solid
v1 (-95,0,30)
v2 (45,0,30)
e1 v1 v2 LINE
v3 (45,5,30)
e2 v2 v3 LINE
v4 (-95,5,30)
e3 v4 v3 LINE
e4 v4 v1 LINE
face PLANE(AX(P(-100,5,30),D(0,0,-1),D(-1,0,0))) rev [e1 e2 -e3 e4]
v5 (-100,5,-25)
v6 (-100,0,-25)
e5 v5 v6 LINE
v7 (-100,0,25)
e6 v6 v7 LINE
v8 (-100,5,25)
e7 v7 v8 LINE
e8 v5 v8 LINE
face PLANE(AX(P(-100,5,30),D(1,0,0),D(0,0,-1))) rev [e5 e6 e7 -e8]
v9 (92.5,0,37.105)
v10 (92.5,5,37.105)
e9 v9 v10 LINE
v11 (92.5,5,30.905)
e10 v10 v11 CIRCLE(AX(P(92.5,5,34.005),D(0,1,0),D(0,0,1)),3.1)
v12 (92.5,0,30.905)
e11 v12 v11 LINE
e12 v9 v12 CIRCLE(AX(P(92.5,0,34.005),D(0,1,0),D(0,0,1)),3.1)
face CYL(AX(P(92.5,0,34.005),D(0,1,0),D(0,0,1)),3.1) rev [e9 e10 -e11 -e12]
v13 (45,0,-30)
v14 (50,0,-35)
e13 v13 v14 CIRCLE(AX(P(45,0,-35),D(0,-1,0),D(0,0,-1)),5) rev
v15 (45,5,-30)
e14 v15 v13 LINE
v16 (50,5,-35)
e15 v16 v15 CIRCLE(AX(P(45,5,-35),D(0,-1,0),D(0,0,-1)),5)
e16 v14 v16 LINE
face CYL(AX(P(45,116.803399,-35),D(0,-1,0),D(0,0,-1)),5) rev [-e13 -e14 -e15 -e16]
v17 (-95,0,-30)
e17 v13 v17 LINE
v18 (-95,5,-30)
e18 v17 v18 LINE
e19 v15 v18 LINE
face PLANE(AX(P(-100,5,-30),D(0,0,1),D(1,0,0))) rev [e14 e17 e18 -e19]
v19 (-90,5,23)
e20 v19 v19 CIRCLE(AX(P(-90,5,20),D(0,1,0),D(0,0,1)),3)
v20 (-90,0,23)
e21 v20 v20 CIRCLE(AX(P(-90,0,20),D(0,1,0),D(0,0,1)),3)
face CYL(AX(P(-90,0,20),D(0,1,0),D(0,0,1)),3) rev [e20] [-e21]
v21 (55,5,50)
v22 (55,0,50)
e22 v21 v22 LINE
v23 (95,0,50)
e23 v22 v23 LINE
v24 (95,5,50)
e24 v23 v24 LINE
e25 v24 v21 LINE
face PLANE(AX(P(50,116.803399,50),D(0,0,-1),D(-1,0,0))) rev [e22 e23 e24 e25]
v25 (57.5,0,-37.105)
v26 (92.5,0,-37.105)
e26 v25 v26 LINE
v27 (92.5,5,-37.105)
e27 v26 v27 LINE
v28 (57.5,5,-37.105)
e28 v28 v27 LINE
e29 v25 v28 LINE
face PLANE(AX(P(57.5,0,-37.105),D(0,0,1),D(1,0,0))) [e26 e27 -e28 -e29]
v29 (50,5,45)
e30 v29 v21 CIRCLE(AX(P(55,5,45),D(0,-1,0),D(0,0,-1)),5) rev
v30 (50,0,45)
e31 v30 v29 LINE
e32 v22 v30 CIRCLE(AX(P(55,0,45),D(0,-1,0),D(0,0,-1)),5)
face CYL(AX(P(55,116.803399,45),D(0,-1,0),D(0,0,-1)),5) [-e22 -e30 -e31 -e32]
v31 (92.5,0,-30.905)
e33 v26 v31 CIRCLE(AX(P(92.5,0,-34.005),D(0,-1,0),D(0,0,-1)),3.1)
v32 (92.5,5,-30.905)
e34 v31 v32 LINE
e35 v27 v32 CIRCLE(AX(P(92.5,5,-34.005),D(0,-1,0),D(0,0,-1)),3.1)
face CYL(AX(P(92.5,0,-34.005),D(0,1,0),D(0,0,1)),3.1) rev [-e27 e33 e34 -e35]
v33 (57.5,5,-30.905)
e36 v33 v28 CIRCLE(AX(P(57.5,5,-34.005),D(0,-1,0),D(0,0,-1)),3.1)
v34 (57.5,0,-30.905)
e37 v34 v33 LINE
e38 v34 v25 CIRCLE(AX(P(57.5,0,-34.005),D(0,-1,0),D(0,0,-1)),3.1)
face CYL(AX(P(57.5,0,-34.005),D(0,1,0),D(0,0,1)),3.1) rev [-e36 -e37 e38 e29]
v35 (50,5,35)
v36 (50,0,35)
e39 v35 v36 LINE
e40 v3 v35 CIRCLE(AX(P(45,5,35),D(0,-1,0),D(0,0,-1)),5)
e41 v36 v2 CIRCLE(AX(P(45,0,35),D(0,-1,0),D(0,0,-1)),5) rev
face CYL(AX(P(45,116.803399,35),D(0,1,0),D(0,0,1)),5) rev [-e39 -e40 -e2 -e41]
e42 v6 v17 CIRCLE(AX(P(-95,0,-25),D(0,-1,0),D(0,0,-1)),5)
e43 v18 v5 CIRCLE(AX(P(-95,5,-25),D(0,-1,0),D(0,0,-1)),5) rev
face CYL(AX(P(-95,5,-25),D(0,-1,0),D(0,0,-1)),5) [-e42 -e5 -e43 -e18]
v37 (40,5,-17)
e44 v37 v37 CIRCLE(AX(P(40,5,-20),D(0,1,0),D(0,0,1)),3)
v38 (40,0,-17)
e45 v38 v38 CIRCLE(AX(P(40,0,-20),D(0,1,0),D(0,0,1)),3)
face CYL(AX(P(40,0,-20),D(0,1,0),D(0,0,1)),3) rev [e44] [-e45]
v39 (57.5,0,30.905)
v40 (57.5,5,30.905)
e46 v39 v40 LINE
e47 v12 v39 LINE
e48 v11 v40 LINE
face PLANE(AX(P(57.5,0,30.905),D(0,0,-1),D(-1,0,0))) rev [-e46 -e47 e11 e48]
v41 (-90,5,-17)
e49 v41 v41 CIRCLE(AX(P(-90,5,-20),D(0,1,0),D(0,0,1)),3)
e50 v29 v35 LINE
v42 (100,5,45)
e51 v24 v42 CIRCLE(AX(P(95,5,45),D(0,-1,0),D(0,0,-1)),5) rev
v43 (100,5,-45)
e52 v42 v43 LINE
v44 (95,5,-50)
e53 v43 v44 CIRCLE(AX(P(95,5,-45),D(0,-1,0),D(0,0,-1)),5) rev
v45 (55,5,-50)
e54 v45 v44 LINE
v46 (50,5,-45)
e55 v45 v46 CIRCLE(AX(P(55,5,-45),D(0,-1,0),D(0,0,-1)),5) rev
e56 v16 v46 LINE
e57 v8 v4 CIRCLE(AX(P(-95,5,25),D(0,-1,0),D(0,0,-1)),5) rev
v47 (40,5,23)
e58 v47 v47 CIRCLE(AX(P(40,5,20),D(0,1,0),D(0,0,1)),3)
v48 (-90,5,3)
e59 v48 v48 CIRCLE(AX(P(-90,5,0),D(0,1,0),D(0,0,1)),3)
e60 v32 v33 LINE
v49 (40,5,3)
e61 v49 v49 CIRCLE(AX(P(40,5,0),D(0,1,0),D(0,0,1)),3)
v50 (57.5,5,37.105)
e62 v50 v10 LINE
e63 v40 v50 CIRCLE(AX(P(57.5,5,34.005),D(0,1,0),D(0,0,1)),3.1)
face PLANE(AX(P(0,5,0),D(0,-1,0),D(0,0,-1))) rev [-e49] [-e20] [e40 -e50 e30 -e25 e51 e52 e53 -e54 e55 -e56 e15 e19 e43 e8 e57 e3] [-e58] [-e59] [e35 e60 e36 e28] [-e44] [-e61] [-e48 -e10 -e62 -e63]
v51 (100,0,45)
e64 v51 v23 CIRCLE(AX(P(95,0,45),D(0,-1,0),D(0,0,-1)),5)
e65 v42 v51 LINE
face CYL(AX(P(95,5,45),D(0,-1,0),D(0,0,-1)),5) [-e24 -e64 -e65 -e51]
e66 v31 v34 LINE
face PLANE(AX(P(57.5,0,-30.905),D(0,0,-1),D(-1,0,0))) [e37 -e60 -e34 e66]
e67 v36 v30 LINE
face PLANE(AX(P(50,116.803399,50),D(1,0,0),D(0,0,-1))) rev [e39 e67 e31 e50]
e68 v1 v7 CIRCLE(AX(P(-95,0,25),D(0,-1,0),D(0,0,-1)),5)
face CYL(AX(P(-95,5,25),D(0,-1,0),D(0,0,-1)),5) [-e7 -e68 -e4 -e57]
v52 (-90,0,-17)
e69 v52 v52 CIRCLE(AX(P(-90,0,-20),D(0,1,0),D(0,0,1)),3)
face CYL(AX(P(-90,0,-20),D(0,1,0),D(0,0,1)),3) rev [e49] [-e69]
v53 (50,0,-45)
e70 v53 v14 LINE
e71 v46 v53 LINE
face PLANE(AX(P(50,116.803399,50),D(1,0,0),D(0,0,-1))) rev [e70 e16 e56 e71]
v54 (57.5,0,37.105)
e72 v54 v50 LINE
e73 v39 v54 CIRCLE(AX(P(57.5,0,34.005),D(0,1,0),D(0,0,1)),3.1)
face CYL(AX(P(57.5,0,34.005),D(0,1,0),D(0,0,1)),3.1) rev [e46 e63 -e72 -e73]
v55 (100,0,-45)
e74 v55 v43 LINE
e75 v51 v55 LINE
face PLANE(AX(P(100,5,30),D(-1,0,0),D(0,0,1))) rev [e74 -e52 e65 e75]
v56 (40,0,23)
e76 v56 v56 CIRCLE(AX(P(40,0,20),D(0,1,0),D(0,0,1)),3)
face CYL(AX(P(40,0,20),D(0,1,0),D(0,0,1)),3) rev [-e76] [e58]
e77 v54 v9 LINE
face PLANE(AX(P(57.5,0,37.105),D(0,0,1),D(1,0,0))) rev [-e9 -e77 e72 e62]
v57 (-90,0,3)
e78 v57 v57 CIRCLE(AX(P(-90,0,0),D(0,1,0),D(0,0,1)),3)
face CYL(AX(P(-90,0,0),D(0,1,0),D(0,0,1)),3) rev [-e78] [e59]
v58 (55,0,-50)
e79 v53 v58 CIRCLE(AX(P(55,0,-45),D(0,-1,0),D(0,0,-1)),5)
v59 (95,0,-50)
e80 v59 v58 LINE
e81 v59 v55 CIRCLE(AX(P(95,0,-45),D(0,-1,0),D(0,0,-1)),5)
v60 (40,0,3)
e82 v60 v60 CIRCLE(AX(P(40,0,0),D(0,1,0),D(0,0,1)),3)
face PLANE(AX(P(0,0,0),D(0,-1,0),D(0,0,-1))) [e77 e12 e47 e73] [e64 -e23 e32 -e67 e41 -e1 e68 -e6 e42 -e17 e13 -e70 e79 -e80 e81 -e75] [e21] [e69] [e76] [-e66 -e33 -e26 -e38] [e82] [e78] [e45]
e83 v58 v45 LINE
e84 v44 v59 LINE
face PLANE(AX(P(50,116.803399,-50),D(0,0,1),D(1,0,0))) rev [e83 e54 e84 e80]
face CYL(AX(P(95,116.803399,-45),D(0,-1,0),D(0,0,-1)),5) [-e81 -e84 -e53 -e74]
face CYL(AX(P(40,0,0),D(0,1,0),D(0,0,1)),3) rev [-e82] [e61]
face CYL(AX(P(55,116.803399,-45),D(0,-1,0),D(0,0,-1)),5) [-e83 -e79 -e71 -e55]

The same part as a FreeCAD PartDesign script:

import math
import FreeCAD as App
import Part
import Sketcher
from FreeCAD import Vector
Q = App.Units.Quantity


def edges_at(feature, points):
    """Names of the edges that pass closest to the given points."""
    edges = feature.Shape.Edges
    near = lambda p: min(range(len(edges)), key=lambda i: edges[i].distToShape(Part.Vertex(*p))[0])
    return sorted({f"Edge{near(p) + 1}" for p in points})

doc = App.newDocument("Part")
body = doc.addObject("PartDesign::Body", "Body")

sketch1 = body.newObject("Sketcher::SketchObject", "Sketch")
sketch1.AttachmentSupport = (doc.getObject("XZ_Plane"), [""])
sketch1.MapMode = "FlatFace"
sketch1.addGeometry(Part.LineSegment(Vector(-100, -30, 0), Vector(-100, 30, 0)), False)
sketch1.addGeometry(Part.LineSegment(Vector(-100, 30, 0), Vector(100, 30, 0)), False)
sketch1.addGeometry(Part.LineSegment(Vector(100, 30, 0), Vector(100, -30, 0)), False)
sketch1.addGeometry(Part.LineSegment(Vector(100, -30, 0), Vector(-100, -30, 0)), False)
sketch1.addConstraint(Sketcher.Constraint("Coincident", 0, 2, 1, 1))
sketch1.addConstraint(Sketcher.Constraint("Coincident", 1, 2, 2, 1))
sketch1.addConstraint(Sketcher.Constraint("Coincident", 2, 2, 3, 1))
sketch1.addConstraint(Sketcher.Constraint("Coincident", 3, 2, 0, 1))
sketch1.addConstraint(Sketcher.Constraint("Vertical", 0))
sketch1.addConstraint(Sketcher.Constraint("Horizontal", 1))
sketch1.addConstraint(Sketcher.Constraint("Vertical", 2))
sketch1.addConstraint(Sketcher.Constraint("Horizontal", 3))
sketch1.addConstraint(Sketcher.Constraint("Symmetric", 0, 2, 2, 2, -1, 1))
sketch1.addConstraint(Sketcher.Constraint("DistanceX", 1, 1, 1, 2, Q("200 mm")))
sketch1.addConstraint(Sketcher.Constraint("DistanceY", 0, 1, 0, 2, Q("60 mm")))
pad1 = body.newObject("PartDesign::Pad", "Pad")
pad1.Profile = sketch1
pad1.Length = 5
pad1.Reversed = True

sketch2 = body.newObject("Sketcher::SketchObject", "Sketch001")
sketch2.AttachmentSupport = (doc.getObject("XZ_Plane"), [""])
sketch2.MapMode = "FlatFace"
sketch2.AttachmentOffset = App.Placement(Vector(0, 0, -5), App.Rotation())
sketch2.addGeometry(Part.Circle(Vector(-90, -20, 0), Vector(0, 0, 1), 3), False)
sketch2.addGeometry(Part.Circle(Vector(-90, 20, 0), Vector(0, 0, 1), 3), False)
sketch2.addGeometry(Part.Circle(Vector(40, 20, 0), Vector(0, 0, 1), 3), False)
sketch2.addGeometry(Part.Circle(Vector(40, -20, 0), Vector(0, 0, 1), 3), False)
sketch2.addGeometry(Part.Circle(Vector(-90, 0, 0), Vector(0, 0, 1), 3), False)
sketch2.addGeometry(Part.Circle(Vector(40, 0, 0), Vector(0, 0, 1), 3), False)
sketch2.addConstraint(Sketcher.Constraint("Equal", 0, 1))
sketch2.addConstraint(Sketcher.Constraint("Equal", 1, 2))
sketch2.addConstraint(Sketcher.Constraint("Equal", 2, 3))
sketch2.addConstraint(Sketcher.Constraint("Equal", 3, 4))
sketch2.addConstraint(Sketcher.Constraint("Equal", 4, 5))
sketch2.addConstraint(Sketcher.Constraint("Symmetric", 0, 3, 1, 3, -1))
sketch2.addConstraint(Sketcher.Constraint("Symmetric", 2, 3, 3, 3, -1))
sketch2.addConstraint(Sketcher.Constraint("PointOnObject", 4, 3, -1))
sketch2.addConstraint(Sketcher.Constraint("PointOnObject", 5, 3, -1))
sketch2.addConstraint(Sketcher.Constraint("Horizontal", 1, 3, 2, 3))
sketch2.addConstraint(Sketcher.Constraint("Vertical", 1, 3, 4, 3))
sketch2.addConstraint(Sketcher.Constraint("Vertical", 3, 3, 5, 3))
sketch2.addConstraint(Sketcher.Constraint("Diameter", 0, Q("6 mm")))
sketch2.addConstraint(Sketcher.Constraint("DistanceX", 0, 3, -1, 1, Q("90 mm")))
sketch2.addConstraint(Sketcher.Constraint("DistanceY", 0, 3, -1, 1, Q("20 mm")))
sketch2.addConstraint(Sketcher.Constraint("DistanceX", -1, 1, 2, 3, Q("40 mm")))
pocket1 = body.newObject("PartDesign::Pocket", "Pocket")
pocket1.Profile = sketch2
pocket1.Type = "ThroughAll"
pocket1.Reversed = True

sketch3 = body.newObject("Sketcher::SketchObject", "Sketch002")
sketch3.AttachmentSupport = (doc.getObject("XZ_Plane"), [""])
sketch3.MapMode = "FlatFace"
sketch3.addGeometry(Part.LineSegment(Vector(50, -50, 0), Vector(50, 50, 0)), False)
sketch3.addGeometry(Part.LineSegment(Vector(50, 50, 0), Vector(100, 50, 0)), False)
sketch3.addGeometry(Part.LineSegment(Vector(100, 50, 0), Vector(100, -50, 0)), False)
sketch3.addGeometry(Part.LineSegment(Vector(100, -50, 0), Vector(50, -50, 0)), False)
sketch3.addConstraint(Sketcher.Constraint("Coincident", 0, 2, 1, 1))
sketch3.addConstraint(Sketcher.Constraint("Coincident", 1, 2, 2, 1))
sketch3.addConstraint(Sketcher.Constraint("Coincident", 2, 2, 3, 1))
sketch3.addConstraint(Sketcher.Constraint("Coincident", 3, 2, 0, 1))
sketch3.addConstraint(Sketcher.Constraint("Vertical", 0))
sketch3.addConstraint(Sketcher.Constraint("Horizontal", 1))
sketch3.addConstraint(Sketcher.Constraint("Vertical", 2))
sketch3.addConstraint(Sketcher.Constraint("Horizontal", 3))
sketch3.addConstraint(Sketcher.Constraint("DistanceX", 1, 1, 1, 2, Q("50 mm")))
sketch3.addConstraint(Sketcher.Constraint("DistanceY", 0, 1, 0, 2, Q("100 mm")))
sketch3.addConstraint(Sketcher.Constraint("DistanceX", -1, 1, 0, 2, Q("50 mm")))
sketch3.addConstraint(Sketcher.Constraint("DistanceY", -1, 1, 0, 2, Q("50 mm")))
pad2 = body.newObject("PartDesign::Pad", "Pad001")
pad2.Profile = sketch3
pad2.Length = 5
pad2.Reversed = True

sketch4 = body.newObject("Sketcher::SketchObject", "Sketch003")
sketch4.AttachmentSupport = (doc.getObject("XZ_Plane"), [""])
sketch4.MapMode = "FlatFace"
sketch4.AttachmentOffset = App.Placement(Vector(0, 0, -5), App.Rotation())
sketch4.addGeometry(Part.LineSegment(Vector(92.5, 30.9, 0), Vector(57.5, 30.9, 0)), False)
sketch4.addGeometry(Part.ArcOfCircle(Part.Circle(Vector(57.5, 34, 0), Vector(0, 0, 1), 3.1), math.radians(90), math.radians(270)), False)
sketch4.addGeometry(Part.LineSegment(Vector(57.5, 37.1, 0), Vector(92.5, 37.1, 0)), False)
sketch4.addGeometry(Part.ArcOfCircle(Part.Circle(Vector(92.5, 34, 0), Vector(0, 0, 1), 3.1), math.radians(-90), math.radians(90)), False)
sketch4.addConstraint(Sketcher.Constraint("Tangent", 0, 2, 1, 2))
sketch4.addConstraint(Sketcher.Constraint("Tangent", 1, 1, 2, 1))
sketch4.addConstraint(Sketcher.Constraint("Tangent", 2, 2, 3, 2))
sketch4.addConstraint(Sketcher.Constraint("Tangent", 3, 1, 0, 1))
sketch4.addConstraint(Sketcher.Constraint("Horizontal", 0))
sketch4.addConstraint(Sketcher.Constraint("Horizontal", 2))
sketch4.addConstraint(Sketcher.Constraint("Radius", 1, Q("3.1 mm")))
sketch4.addConstraint(Sketcher.Constraint("DistanceX", 0, 2, 0, 1, Q("35 mm")))
sketch4.addConstraint(Sketcher.Constraint("DistanceX", -1, 1, 1, 3, Q("57.5 mm")))
sketch4.addConstraint(Sketcher.Constraint("DistanceY", -1, 1, 1, 3, Q("34.005 mm")))
pocket2 = body.newObject("PartDesign::Pocket", "Pocket001")
pocket2.Profile = sketch4
pocket2.Type = "ThroughAll"
pocket2.Reversed = True
doc.recompute()

mirrored = body.newObject("PartDesign::Mirrored", "Mirrored")
mirrored.Originals = [pocket2]
mirrored.MirrorPlane = (doc.getObject("XY_Plane"), [""])
body.Tip = mirrored
doc.recompute()

fillet = body.newObject("PartDesign::Fillet", "Fillet")
fillet.Base = (mirrored, edges_at(mirrored, [
    (100, 2.5, 50),
    (50, 2.5, -30),
    (50, 2.5, -50),
    (50, 2.5, 30),
    (100, 2.5, -50),
    (50, 2.5, 50),
    (-100, 2.5, 30),
    (-100, 2.5, -30),
]))
fillet.Radius = 5

doc.recompute()
